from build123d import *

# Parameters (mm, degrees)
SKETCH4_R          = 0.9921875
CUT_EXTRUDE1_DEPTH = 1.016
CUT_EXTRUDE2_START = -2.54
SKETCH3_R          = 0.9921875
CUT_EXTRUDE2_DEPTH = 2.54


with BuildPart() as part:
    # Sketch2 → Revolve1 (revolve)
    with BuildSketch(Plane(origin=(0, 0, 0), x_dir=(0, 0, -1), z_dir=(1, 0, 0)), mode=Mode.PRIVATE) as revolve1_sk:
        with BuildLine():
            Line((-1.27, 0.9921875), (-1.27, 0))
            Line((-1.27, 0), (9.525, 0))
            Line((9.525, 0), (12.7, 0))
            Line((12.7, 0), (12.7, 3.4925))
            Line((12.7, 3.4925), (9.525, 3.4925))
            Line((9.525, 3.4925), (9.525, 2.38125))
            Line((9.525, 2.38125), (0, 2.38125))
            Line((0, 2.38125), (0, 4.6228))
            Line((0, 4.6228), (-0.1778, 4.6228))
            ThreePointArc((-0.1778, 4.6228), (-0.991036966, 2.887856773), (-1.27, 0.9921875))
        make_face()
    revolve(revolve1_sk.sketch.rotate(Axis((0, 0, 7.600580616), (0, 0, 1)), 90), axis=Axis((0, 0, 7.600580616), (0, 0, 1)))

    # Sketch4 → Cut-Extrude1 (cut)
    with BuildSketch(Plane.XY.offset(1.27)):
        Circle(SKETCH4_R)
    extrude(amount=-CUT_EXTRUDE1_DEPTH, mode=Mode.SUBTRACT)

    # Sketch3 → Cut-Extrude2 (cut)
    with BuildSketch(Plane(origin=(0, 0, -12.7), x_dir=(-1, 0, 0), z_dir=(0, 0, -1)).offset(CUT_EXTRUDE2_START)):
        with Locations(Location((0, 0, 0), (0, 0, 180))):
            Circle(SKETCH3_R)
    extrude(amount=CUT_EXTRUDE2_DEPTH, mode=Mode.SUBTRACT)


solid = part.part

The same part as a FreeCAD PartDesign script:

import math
import FreeCAD as App
import Part
import Sketcher
from FreeCAD import Vector
Q = App.Units.Quantity

doc = App.newDocument("Part")
body = doc.addObject("PartDesign::Body", "Body")

sketch1 = doc.addObject("Sketcher::SketchObject", "Sketch")
body.addObject(sketch1)
sketch1.AttachmentSupport = (doc.YZ_Plane, [""])
sketch1.MapMode = "FlatFace"
sketch1.addGeometry([
    Part.LineSegment(Vector(0.992188, 1.27, 0), Vector(0, 1.27, 0)),
    Part.LineSegment(Vector(0, 1.27, 0), Vector(0, -12.7, 0)),
    Part.LineSegment(Vector(0, -12.7, 0), Vector(3.4925, -12.7, 0)),
    Part.LineSegment(Vector(3.4925, -12.7, 0), Vector(3.4925, -9.525, 0)),
    Part.LineSegment(Vector(3.4925, -9.525, 0), Vector(2.38125, -9.525, 0)),
    Part.LineSegment(Vector(2.38125, -9.525, 0), Vector(2.38125, 0, 0)),
    Part.LineSegment(Vector(2.38125, 0, 0), Vector(4.6228, 0, 0)),
    Part.LineSegment(Vector(4.6228, 0, 0), Vector(4.6228, 0.1778, 0)),
    Part.ArcOfCircle(Part.Circle(Vector(0.992187, -5.31041, 0), Vector(0, 0, 1), 6.58041), math.radians(56.514191), math.radians(90)),
], False)
sketch1.addConstraint([
    Sketcher.Constraint("Coincident", 0, 2, 1, 1),
    Sketcher.Constraint("Coincident", 1, 2, 2, 1),
    Sketcher.Constraint("Coincident", 2, 2, 3, 1),
    Sketcher.Constraint("Coincident", 3, 2, 4, 1),
    Sketcher.Constraint("Coincident", 4, 2, 5, 1),
    Sketcher.Constraint("Coincident", 5, 2, 6, 1),
    Sketcher.Constraint("Coincident", 6, 2, 7, 1),
    Sketcher.Constraint("Coincident", 7, 2, 8, 1),
    Sketcher.Constraint("Tangent", 8, 2, 0, 1),
    Sketcher.Constraint("Horizontal", 0),
    Sketcher.Constraint("Vertical", 1),
    Sketcher.Constraint("Horizontal", 2),
    Sketcher.Constraint("Vertical", 3),
    Sketcher.Constraint("Horizontal", 4),
    Sketcher.Constraint("Vertical", 5),
    Sketcher.Constraint("Horizontal", 6),
    Sketcher.Constraint("Vertical", 7),
    Sketcher.Constraint("PointOnObject", 0, 2, -2),
    Sketcher.Constraint("PointOnObject", 5, 2, -1),
    Sketcher.Constraint("DistanceY", 1, 2, 1, 1, Q("0.55 in")),
    Sketcher.Constraint("DistanceY", 1, 2, -1, 1, Q("0.5 in")),
    Sketcher.Constraint("DistanceY", 3, 1, 3, 2, Q("0.125 in")),
    Sketcher.Constraint("DistanceY", 7, 1, 7, 2, Q("0.007 in")),
    Sketcher.Constraint("DistanceX", 2, 1, 2, 2, Q("0.1375 in")),
    Sketcher.Constraint("DistanceX", -1, 1, 4, 2, Q("0.09375 in")),
    Sketcher.Constraint("DistanceX", -1, 1, 6, 2, Q("0.182 in")),
    Sketcher.Constraint("Radius", 8, 6.58041),
])
revolution = doc.addObject("PartDesign::Revolution", "Revolution")
body.addObject(revolution)
revolution.Profile = sketch1
revolution.ReferenceAxis = (sketch1, ["V_Axis"])
revolution.Angle = 360

sketch2 = doc.addObject("Sketcher::SketchObject", "Sketch001")
body.addObject(sketch2)
sketch2.AttachmentSupport = (doc.XY_Plane, [""])
sketch2.MapMode = "FlatFace"
sketch2.AttachmentOffset = App.Placement(Vector(0, 0, 0.05 * 25.4), App.Rotation())
sketch2.addGeometry(Part.Circle(Vector(0, 0, 0), Vector(0, 0, 1), 0.992188), False)
sketch2.addConstraint([
    Sketcher.Constraint("Coincident", 0, 3, -1, 1),
    Sketcher.Constraint("Diameter", 0, Q("0.078125 in")),
])
pocket1 = doc.addObject("PartDesign::Pocket", "Pocket")
body.addObject(pocket1)
pocket1.Profile = sketch2
pocket1.Length = Q("0.04 in")

sketch3 = doc.addObject("Sketcher::SketchObject", "Sketch002")
body.addObject(sketch3)
sketch3.AttachmentSupport = (doc.XY_Plane, [""])
sketch3.MapMode = "FlatFace"
sketch3.AttachmentOffset = App.Placement(Vector(0, 0, -0.4 * 25.4), App.Rotation())
sketch3.addGeometry(Part.Circle(Vector(0, 0, 0), Vector(0, 0, 1), 0.992188), False)
sketch3.addConstraint([
    Sketcher.Constraint("Coincident", 0, 3, -1, 1),
    Sketcher.Constraint("Diameter", 0, Q("0.078125 in")),
])
pocket2 = doc.addObject("PartDesign::Pocket", "Pocket001")
body.addObject(pocket2)
pocket2.Profile = sketch3
pocket2.Length = Q("0.1 in")

doc.recompute()
